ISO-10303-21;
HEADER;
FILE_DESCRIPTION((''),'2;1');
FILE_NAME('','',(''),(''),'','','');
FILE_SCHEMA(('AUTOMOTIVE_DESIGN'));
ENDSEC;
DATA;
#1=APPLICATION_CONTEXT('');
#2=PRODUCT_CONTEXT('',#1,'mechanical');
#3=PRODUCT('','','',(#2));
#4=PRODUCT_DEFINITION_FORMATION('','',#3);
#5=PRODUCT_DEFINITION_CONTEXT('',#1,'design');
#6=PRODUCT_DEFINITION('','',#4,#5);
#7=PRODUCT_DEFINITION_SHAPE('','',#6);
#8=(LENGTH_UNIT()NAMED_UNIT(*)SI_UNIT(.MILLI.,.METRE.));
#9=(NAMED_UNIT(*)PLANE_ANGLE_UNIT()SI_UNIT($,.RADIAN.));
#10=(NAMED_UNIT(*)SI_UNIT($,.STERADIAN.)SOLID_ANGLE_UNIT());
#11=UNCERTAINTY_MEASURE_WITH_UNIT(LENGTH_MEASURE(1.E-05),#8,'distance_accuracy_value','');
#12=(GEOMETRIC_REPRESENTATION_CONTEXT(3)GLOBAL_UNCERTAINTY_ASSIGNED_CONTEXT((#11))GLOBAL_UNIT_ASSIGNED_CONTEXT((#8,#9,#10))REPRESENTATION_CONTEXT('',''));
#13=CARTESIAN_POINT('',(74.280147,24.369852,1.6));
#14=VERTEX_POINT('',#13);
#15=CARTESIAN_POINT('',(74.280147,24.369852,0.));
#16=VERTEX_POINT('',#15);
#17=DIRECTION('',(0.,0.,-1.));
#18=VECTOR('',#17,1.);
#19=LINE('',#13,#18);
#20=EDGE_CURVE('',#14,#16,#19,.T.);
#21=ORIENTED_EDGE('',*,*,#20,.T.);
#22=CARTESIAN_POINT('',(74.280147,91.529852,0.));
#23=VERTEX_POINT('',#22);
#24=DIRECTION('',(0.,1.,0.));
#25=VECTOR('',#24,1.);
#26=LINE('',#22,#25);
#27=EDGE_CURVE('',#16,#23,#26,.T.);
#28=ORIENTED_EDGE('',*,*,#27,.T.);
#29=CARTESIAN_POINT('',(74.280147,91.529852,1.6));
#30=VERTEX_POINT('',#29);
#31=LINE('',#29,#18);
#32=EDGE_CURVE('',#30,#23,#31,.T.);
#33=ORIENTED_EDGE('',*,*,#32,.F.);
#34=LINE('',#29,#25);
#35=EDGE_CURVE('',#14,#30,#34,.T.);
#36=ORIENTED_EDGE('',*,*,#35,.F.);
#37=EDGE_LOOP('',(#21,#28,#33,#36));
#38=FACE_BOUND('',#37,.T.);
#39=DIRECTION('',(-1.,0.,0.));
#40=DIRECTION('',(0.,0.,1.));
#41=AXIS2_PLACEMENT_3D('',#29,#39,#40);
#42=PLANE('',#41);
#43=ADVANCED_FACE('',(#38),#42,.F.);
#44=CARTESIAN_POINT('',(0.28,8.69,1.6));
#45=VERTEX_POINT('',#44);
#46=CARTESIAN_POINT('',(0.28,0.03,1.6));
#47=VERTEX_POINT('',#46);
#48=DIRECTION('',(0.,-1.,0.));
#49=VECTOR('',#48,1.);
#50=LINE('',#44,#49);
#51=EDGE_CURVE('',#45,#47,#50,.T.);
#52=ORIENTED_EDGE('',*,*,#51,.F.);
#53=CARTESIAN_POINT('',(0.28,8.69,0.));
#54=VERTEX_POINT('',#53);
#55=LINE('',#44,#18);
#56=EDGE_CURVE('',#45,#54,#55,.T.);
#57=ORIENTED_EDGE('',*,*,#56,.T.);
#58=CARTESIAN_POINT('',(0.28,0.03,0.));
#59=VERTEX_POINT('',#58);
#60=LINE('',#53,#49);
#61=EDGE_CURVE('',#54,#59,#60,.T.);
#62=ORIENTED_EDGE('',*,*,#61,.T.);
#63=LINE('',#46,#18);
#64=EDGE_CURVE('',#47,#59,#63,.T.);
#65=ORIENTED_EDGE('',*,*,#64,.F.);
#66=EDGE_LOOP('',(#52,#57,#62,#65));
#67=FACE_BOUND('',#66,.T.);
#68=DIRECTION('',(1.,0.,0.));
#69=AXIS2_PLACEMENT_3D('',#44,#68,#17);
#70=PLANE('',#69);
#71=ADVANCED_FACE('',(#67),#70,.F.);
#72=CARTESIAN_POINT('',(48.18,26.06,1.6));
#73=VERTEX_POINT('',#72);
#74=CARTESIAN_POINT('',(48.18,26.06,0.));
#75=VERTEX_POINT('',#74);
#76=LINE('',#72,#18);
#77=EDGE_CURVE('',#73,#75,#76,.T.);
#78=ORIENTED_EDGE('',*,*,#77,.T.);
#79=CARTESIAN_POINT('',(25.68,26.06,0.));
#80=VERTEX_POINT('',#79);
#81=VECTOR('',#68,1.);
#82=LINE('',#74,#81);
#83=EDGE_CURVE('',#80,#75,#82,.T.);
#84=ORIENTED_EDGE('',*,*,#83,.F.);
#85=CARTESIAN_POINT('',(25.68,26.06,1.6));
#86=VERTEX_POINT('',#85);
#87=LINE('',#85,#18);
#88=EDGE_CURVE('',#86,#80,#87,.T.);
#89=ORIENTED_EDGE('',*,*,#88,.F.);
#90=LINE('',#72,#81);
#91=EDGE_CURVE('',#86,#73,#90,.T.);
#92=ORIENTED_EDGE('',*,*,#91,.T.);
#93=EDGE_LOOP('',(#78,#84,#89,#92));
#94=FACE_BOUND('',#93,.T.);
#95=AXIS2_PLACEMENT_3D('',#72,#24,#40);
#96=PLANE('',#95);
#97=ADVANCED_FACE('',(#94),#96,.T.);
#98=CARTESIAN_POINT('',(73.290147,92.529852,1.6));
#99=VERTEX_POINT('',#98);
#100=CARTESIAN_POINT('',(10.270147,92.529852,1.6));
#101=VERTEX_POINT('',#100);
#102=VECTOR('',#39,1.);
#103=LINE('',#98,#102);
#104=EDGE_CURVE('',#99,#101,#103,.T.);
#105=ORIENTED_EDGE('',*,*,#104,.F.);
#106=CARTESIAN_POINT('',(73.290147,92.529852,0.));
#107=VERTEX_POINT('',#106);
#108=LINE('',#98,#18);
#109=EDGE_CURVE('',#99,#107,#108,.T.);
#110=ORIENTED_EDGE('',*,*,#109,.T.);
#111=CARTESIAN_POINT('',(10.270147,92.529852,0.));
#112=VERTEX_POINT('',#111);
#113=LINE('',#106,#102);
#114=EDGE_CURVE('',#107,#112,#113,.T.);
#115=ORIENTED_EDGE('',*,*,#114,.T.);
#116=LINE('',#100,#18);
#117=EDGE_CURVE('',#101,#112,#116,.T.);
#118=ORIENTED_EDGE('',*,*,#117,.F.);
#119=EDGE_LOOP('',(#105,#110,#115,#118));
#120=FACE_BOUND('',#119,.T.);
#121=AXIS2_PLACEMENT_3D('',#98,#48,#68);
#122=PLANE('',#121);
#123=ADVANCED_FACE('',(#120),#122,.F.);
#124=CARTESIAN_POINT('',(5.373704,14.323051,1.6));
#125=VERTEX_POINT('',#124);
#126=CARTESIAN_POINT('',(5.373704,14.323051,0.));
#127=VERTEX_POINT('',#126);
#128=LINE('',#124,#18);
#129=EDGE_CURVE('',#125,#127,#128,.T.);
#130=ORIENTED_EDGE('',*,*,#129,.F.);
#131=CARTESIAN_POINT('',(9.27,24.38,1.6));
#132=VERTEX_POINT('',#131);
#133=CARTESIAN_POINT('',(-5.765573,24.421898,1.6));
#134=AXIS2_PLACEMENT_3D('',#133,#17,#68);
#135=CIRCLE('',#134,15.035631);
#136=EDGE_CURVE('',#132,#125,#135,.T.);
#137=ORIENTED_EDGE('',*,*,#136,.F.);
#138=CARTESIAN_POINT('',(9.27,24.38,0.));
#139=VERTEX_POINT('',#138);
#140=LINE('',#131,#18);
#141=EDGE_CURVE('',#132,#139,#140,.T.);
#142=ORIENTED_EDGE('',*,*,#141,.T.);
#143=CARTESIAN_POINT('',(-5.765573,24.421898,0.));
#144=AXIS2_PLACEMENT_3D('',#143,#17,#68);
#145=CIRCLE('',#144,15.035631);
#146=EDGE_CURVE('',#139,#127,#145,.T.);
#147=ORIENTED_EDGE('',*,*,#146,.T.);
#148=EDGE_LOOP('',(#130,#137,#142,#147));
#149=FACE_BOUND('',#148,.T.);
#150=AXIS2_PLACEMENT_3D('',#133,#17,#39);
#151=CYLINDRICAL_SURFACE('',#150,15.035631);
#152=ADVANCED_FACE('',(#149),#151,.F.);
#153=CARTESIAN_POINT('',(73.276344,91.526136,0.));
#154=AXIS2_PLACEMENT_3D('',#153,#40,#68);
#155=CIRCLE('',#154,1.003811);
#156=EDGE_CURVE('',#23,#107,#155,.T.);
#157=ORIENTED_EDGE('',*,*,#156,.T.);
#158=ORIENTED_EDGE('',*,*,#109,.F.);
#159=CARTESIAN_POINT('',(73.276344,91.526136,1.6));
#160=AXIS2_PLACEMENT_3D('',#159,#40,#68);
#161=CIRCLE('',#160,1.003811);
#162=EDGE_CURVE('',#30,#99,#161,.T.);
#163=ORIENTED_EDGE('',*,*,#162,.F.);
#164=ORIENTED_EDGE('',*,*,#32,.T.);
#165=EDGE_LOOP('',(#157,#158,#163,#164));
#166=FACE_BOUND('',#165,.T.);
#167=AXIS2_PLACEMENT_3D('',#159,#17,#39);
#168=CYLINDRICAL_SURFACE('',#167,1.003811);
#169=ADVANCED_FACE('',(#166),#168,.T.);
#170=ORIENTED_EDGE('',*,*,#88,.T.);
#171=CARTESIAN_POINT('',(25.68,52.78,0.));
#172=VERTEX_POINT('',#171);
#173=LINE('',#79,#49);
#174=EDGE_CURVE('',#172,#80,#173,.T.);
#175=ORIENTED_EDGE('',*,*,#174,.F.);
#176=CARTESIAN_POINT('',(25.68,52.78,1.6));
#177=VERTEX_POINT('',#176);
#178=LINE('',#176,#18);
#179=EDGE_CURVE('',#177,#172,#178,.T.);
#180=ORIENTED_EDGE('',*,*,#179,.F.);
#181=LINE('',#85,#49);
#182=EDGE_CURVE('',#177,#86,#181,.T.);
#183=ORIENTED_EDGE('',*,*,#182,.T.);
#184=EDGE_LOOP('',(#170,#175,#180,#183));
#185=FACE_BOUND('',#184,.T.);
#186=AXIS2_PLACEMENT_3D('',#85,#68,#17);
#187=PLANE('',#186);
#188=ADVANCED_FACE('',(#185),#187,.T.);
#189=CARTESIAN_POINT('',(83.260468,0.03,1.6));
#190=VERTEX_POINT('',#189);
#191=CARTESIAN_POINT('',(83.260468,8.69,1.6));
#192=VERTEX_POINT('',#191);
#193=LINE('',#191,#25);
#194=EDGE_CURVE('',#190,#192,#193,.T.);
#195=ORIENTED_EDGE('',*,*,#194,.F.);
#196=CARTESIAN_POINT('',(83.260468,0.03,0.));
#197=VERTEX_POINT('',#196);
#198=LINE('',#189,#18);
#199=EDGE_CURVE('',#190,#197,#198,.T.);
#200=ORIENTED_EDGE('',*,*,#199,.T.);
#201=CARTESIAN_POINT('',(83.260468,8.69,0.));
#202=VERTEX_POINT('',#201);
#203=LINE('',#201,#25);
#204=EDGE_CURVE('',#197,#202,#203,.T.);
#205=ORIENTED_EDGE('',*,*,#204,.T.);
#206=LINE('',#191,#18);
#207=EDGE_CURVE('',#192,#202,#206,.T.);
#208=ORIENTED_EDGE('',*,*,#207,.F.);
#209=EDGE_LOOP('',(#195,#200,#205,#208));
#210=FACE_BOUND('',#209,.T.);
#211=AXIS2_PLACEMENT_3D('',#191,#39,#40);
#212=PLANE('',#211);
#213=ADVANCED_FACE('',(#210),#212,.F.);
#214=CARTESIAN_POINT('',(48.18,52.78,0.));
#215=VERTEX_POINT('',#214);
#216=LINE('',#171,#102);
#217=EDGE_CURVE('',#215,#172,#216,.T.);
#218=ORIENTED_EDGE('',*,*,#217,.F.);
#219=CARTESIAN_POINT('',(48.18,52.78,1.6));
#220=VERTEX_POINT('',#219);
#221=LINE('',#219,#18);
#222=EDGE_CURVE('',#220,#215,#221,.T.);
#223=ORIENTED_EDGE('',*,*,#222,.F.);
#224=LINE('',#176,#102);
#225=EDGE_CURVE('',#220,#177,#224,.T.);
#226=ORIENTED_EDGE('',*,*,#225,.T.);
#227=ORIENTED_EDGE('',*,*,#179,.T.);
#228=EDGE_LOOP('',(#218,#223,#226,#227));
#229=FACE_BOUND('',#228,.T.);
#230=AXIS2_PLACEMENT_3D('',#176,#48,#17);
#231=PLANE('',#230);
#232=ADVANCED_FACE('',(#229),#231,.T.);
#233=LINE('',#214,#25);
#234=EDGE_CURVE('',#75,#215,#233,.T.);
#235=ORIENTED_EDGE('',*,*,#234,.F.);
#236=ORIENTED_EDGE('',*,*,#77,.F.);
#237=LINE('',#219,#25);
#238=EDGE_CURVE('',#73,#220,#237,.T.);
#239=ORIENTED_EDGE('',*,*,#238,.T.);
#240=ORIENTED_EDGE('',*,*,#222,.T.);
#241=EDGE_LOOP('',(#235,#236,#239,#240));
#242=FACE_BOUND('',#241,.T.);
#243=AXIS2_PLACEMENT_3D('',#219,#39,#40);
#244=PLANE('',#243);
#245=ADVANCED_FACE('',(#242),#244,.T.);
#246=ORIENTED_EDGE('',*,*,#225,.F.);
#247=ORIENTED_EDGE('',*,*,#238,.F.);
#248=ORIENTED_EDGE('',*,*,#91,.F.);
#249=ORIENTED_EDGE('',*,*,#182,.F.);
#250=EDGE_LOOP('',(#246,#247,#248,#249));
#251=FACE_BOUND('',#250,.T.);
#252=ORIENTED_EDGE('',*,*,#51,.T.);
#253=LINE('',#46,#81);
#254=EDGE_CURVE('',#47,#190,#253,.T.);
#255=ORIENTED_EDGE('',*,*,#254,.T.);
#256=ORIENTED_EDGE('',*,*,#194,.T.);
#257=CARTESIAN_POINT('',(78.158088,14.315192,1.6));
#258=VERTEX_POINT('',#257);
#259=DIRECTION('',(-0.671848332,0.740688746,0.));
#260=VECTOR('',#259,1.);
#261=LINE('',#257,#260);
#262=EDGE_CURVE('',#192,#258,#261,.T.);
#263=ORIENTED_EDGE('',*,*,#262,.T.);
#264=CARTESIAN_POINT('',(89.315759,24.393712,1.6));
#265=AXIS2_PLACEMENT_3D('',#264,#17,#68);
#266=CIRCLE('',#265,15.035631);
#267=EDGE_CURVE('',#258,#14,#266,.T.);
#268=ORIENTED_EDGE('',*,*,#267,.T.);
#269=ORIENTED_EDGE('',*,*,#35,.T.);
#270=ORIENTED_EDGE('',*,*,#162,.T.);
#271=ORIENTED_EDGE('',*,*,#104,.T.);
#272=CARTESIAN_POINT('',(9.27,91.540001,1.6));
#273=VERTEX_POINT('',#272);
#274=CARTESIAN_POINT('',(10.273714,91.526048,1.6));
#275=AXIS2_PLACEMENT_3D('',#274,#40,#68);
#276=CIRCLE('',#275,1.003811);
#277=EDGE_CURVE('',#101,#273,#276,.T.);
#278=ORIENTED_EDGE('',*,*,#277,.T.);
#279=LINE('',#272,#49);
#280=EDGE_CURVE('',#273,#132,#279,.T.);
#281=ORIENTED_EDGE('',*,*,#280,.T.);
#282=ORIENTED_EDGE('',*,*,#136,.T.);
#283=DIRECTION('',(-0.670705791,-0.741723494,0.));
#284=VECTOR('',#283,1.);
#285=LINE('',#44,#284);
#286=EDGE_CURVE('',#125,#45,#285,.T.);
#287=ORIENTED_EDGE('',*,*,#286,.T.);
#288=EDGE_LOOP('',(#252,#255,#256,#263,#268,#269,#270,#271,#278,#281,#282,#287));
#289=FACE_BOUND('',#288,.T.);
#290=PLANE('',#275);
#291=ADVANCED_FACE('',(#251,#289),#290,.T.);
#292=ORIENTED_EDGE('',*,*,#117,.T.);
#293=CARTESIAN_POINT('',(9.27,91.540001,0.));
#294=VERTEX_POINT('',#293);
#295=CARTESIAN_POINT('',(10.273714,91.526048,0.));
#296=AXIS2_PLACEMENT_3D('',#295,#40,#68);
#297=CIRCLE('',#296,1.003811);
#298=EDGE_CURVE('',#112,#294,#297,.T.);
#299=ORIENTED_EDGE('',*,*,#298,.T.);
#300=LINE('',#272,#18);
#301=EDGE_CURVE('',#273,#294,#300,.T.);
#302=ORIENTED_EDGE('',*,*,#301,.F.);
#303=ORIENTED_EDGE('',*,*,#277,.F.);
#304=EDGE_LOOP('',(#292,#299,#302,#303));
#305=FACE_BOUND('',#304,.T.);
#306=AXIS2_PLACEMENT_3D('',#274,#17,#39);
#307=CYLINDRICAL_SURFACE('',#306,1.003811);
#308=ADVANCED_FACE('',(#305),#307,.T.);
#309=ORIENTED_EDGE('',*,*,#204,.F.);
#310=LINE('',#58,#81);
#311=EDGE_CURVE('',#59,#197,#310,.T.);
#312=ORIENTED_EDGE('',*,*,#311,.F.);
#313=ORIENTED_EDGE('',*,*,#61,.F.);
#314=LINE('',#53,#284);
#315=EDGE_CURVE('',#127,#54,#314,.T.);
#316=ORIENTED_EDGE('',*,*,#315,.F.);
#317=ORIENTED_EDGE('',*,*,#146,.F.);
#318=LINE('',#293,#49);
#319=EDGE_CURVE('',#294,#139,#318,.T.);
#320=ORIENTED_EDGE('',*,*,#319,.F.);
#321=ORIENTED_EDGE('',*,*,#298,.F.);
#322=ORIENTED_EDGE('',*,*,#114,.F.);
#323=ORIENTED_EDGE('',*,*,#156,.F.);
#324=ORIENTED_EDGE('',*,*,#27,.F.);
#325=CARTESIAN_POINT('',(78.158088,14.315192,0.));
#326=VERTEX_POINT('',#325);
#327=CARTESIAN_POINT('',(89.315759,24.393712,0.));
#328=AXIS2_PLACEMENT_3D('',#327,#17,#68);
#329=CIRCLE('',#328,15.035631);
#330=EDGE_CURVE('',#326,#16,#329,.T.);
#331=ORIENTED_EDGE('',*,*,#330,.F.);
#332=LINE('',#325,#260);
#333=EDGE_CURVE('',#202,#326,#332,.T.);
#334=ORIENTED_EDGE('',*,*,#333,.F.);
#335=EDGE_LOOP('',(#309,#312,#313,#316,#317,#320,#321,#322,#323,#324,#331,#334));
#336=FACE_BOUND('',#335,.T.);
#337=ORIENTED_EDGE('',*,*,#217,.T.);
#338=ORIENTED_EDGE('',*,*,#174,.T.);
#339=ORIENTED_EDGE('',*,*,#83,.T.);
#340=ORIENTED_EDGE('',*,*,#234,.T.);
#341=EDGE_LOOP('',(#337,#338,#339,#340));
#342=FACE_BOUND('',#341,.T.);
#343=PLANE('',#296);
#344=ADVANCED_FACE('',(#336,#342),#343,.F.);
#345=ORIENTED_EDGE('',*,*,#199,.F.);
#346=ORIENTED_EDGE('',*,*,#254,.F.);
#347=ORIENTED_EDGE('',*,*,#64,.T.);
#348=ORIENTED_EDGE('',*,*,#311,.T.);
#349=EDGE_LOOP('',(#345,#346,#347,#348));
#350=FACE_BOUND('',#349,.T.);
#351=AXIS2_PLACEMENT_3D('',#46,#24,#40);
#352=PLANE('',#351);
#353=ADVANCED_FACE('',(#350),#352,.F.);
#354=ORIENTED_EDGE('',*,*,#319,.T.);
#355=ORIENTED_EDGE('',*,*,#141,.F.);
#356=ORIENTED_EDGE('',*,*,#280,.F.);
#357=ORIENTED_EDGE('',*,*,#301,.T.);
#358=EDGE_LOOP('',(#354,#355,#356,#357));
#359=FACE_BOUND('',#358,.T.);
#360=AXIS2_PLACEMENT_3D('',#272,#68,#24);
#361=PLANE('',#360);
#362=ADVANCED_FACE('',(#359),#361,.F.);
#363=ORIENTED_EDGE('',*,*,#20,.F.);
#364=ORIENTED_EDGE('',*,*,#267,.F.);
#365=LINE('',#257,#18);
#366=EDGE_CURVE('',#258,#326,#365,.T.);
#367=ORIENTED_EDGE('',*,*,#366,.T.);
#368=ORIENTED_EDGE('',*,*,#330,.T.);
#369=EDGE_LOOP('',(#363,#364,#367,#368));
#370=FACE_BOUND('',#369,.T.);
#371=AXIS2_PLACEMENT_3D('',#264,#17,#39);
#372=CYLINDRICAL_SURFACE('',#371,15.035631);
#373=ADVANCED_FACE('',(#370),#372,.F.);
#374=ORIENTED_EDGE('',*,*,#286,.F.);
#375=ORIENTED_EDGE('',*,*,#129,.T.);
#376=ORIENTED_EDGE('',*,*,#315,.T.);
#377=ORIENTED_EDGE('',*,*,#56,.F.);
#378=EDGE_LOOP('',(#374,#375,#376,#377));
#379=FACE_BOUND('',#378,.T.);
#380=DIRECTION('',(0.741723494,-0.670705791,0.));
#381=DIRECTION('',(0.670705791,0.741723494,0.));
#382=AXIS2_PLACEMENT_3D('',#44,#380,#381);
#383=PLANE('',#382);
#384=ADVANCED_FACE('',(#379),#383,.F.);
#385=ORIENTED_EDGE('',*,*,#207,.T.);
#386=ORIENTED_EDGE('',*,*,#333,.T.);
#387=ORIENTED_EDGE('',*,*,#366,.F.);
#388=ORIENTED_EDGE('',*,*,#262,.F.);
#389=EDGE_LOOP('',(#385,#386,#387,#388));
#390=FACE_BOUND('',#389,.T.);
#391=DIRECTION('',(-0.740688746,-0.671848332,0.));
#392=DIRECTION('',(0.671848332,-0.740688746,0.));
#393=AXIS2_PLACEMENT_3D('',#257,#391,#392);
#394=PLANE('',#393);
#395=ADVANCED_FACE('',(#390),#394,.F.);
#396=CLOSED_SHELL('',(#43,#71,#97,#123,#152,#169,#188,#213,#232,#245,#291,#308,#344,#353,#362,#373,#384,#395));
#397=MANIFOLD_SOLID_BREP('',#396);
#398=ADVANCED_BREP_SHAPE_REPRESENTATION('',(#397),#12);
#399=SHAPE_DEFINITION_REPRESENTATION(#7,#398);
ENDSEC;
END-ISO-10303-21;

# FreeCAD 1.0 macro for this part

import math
import FreeCAD as App
import Part
import Sketcher
from FreeCAD import Vector
Q = App.Units.Quantity

doc = App.newDocument("Part")
body = doc.addObject("PartDesign::Body", "Body")

sketch1 = body.newObject("Sketcher::SketchObject", "Sketch")
sketch1.AttachmentSupport = (doc.getObject("XY_Plane"), [""])
sketch1.MapMode = "FlatFace"
sketch1.addGeometry([
    Part.LineSegment(Vector(83.3, 8.7, 0), Vector(78.2, 14.3, 0)),
    Part.ArcOfCircle(Part.Circle(Vector(89.3, 24.4, 0), Vector(0, 0, 1), 15), math.radians(-180), math.radians(-138)),
    Part.LineSegment(Vector(74.3, 24.4, 0), Vector(74.3, 91.5, 0)),
    Part.ArcOfCircle(Part.Circle(Vector(73.3, 91.5, 0), Vector(0, 0, 1), 1), math.radians(0), math.radians(89)),
    Part.LineSegment(Vector(73.3, 92.5, 0), Vector(10.3, 92.5, 0)),
    Part.ArcOfCircle(Part.Circle(Vector(10.3, 91.5, 0), Vector(0, 0, 1), 1), math.radians(90), math.radians(179)),
    Part.LineSegment(Vector(9.3, 91.5, 0), Vector(9.3, 24.4, 0)),
    Part.ArcOfCircle(Part.Circle(Vector(-5.8, 24.4, 0), Vector(0, 0, 1), 15), math.radians(-42), math.radians(0)),
    Part.LineSegment(Vector(5.4, 14.3, 0), Vector(0.3, 8.7, 0)),
    Part.LineSegment(Vector(0.3, 8.7, 0), Vector(0.3, 0, 0)),
    Part.LineSegment(Vector(0.3, 0, 0), Vector(83.3, 0, 0)),
    Part.LineSegment(Vector(83.3, 0, 0), Vector(83.3, 8.7, 0)),
    Part.LineSegment(Vector(25.7, 26.1, 0), Vector(25.7, 52.8, 0)),
    Part.LineSegment(Vector(25.7, 52.8, 0), Vector(48.2, 52.8, 0)),
    Part.LineSegment(Vector(48.2, 52.8, 0), Vector(48.2, 26.1, 0)),
    Part.LineSegment(Vector(48.2, 26.1, 0), Vector(25.7, 26.1, 0)),
], False)
sketch1.addConstraint([
    Sketcher.Constraint("Coincident", 0, 2, 1, 2),
    Sketcher.Constraint("Coincident", 1, 1, 2, 1),
    Sketcher.Constraint("Coincident", 2, 2, 3, 1),
    Sketcher.Constraint("Coincident", 3, 2, 4, 1),
    Sketcher.Constraint("Coincident", 4, 2, 5, 1),
    Sketcher.Constraint("Coincident", 5, 2, 6, 1),
    Sketcher.Constraint("Coincident", 6, 2, 7, 2),
    Sketcher.Constraint("Coincident", 7, 1, 8, 1),
    Sketcher.Constraint("Coincident", 8, 2, 9, 1),
    Sketcher.Constraint("Coincident", 9, 2, 10, 1),
    Sketcher.Constraint("Coincident", 10, 2, 11, 1),
    Sketcher.Constraint("Coincident", 11, 2, 0, 1),
    Sketcher.Constraint("Coincident", 12, 2, 13, 1),
    Sketcher.Constraint("Coincident", 13, 2, 14, 1),
    Sketcher.Constraint("Coincident", 14, 2, 15, 1),
    Sketcher.Constraint("Coincident", 15, 2, 12, 1),
    Sketcher.Constraint("Vertical", 2),
    Sketcher.Constraint("Horizontal", 4),
    Sketcher.Constraint("Vertical", 6),
    Sketcher.Constraint("Vertical", 9),
    Sketcher.Constraint("Horizontal", 10),
    Sketcher.Constraint("Vertical", 11),
    Sketcher.Constraint("Vertical", 12),
    Sketcher.Constraint("Horizontal", 13),
    Sketcher.Constraint("Vertical", 14),
    Sketcher.Constraint("Horizontal", 15),
    Sketcher.Constraint("Equal", 3, 5),
    Sketcher.Constraint("Equal", 1, 7),
    Sketcher.Constraint("Horizontal", 8, 2, 11, 2),
    Sketcher.Constraint("Equal", 2, 6),
    Sketcher.Constraint("Equal", 0, 8),
    Sketcher.Constraint("DistanceX", 13, 1, 13, 2, Q("22.5 mm")),
    Sketcher.Constraint("DistanceY", 2, 2, 3, 2, Q("1 mm")),
    Sketcher.Constraint("DistanceX", 4, 2, 4, 1, Q("63.02 mm")),
    Sketcher.Constraint("DistanceY", 2, 1, 2, 2, Q("67.16 mm")),
    Sketcher.Constraint("DistanceY", 9, 2, 9, 1, Q("8.66 mm")),
    Sketcher.Constraint("DistanceY", 12, 1, 12, 2, Q("26.72 mm")),
    Sketcher.Constraint("DistanceY", 6, 2, 12, 2, Q("28.4 mm")),
    Sketcher.Constraint("DistanceX", 8, 2, 15, 2, Q("25.4 mm")),
    Sketcher.Constraint("DistanceX", -1, 1, 5, 2, Q("9.27 mm")),
    Sketcher.Constraint("DistanceY", -1, 1, 5, 2, Q("91.540001 mm")),
    Sketcher.Constraint("DistanceX", -1, 1, 8, 2, Q("0.28 mm")),
    Sketcher.Constraint("DistanceY", -1, 1, 8, 2, Q("8.69 mm")),
    Sketcher.Constraint("Radius", 1, Q("15.035631 mm")),
    Sketcher.Constraint("Radius", 3, Q("1.003811 mm")),
    Sketcher.Constraint("DistanceX", 3, 2, 2, 2, Q("0.99 mm")),
    Sketcher.Constraint("DistanceX", 10, 1, 10, 2, Q("82.980468 mm")),
    Sketcher.Constraint("DistanceY", -1, 1, 7, 3, Q("24.421898 mm")),
    Sketcher.Constraint("DistanceY", 7, 1, 1, 1, Q("10.046801 mm")),
    Sketcher.Constraint("DistanceX", -1, 1, 1, 3, Q("89.315759 mm")),
    Sketcher.Constraint("DistanceY", -1, 1, 1, 3, Q("24.393712 mm")),
    Sketcher.Constraint("DistanceY", -1, 1, 1, 1, Q("24.369852 mm")),
])
pad1 = body.newObject("PartDesign::Pad", "Pad")
pad1.Profile = sketch1
pad1.Length = 1.6

doc.recompute()
